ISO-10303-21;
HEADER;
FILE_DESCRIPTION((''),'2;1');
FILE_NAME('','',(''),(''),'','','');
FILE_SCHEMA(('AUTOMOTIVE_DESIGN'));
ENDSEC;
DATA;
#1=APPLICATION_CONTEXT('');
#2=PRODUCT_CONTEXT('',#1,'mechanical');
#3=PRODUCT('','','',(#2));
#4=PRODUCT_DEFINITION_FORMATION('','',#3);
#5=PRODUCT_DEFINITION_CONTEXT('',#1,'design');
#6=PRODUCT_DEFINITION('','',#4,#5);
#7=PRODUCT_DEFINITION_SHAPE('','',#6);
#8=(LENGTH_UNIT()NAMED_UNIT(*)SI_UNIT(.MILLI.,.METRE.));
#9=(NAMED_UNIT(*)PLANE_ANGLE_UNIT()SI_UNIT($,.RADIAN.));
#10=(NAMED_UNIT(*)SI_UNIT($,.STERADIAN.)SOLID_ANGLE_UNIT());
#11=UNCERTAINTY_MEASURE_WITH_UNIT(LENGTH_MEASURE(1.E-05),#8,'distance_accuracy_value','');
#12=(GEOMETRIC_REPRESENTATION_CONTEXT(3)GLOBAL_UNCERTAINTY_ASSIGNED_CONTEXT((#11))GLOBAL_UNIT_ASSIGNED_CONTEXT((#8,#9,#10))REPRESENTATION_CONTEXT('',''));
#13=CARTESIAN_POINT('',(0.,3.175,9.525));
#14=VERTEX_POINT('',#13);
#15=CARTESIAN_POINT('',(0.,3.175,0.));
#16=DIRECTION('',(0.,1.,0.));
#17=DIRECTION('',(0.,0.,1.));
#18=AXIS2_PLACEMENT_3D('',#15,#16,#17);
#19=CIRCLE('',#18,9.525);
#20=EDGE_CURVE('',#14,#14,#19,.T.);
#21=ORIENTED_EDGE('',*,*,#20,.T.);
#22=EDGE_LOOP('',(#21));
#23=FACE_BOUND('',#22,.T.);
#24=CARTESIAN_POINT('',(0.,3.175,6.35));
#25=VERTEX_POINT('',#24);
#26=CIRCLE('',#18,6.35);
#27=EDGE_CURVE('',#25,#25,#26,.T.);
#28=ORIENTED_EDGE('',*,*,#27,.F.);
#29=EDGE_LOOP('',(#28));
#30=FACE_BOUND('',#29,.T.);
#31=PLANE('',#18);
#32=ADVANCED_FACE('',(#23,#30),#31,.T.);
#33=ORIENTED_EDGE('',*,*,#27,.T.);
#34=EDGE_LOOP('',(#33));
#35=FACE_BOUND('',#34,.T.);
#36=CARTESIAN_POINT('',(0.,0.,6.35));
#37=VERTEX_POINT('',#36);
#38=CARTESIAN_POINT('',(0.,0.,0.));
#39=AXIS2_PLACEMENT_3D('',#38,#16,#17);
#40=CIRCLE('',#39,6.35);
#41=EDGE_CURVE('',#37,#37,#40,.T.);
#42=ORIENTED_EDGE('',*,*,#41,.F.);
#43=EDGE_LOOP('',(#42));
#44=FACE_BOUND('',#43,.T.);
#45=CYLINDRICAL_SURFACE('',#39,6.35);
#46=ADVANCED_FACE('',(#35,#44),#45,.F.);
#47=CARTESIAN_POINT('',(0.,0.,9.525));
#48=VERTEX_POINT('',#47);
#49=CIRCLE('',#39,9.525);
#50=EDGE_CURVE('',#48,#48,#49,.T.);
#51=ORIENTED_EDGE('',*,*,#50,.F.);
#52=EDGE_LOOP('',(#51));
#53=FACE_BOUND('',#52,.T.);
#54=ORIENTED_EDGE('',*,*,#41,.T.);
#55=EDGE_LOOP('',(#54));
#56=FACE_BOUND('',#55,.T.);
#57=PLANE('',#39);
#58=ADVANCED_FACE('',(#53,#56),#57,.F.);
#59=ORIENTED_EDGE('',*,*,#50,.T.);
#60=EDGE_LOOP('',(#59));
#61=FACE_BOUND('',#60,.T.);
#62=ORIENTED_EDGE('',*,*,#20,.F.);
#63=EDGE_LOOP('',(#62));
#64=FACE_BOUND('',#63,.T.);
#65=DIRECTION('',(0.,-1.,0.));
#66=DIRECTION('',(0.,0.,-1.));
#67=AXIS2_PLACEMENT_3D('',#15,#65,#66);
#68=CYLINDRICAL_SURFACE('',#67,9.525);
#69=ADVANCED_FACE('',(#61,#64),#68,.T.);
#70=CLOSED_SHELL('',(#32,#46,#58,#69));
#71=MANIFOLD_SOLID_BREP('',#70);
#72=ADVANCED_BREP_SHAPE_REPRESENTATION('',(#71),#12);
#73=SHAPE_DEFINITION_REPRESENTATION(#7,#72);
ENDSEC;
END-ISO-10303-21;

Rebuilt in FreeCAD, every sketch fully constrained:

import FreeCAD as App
import Part
import Sketcher
Q = App.Units.Quantity

doc = App.newDocument("Part")
body = doc.addObject("PartDesign::Body", "Body")

sketch1 = body.newObject("Sketcher::SketchObject", "Sketch")
sketch1.AttachmentSupport = (doc.getObject("XZ_Plane"), [""])
sketch1.MapMode = "FlatFace"
sketch1.addGeometry(Part.Circle(App.Vector(0, 0, 0), App.Vector(0, 0, 1), 10), False)
sketch1.addConstraint(Sketcher.Constraint("Coincident", 0, 3, -1, 1))
sketch1.addConstraint(Sketcher.Constraint("Diameter", 0, Q("0.75 in")))
pad1 = body.newObject("PartDesign::Pad", "Pad")
pad1.Profile = sketch1
pad1.Length = Q("0.125 in")
pad1.Reversed = True

sketch2 = body.newObject("Sketcher::SketchObject", "Sketch001")
sketch2.AttachmentSupport = (doc.getObject("XZ_Plane"), [""])
sketch2.MapMode = "FlatFace"
sketch2.AttachmentOffset = App.Placement(App.Vector(0, 0, -0.125 * 25.4), App.Rotation())
sketch2.addGeometry(Part.Circle(App.Vector(0, 0, 0), App.Vector(0, 0, 1), 6), False)
sketch2.addConstraint(Sketcher.Constraint("Coincident", 0, 3, -1, 1))
sketch2.addConstraint(Sketcher.Constraint("Diameter", 0, Q("0.5 in")))
pocket1 = body.newObject("PartDesign::Pocket", "Pocket")
pocket1.Profile = sketch2
pocket1.Type = "ThroughAll"
pocket1.Reversed = True

doc.recompute()
